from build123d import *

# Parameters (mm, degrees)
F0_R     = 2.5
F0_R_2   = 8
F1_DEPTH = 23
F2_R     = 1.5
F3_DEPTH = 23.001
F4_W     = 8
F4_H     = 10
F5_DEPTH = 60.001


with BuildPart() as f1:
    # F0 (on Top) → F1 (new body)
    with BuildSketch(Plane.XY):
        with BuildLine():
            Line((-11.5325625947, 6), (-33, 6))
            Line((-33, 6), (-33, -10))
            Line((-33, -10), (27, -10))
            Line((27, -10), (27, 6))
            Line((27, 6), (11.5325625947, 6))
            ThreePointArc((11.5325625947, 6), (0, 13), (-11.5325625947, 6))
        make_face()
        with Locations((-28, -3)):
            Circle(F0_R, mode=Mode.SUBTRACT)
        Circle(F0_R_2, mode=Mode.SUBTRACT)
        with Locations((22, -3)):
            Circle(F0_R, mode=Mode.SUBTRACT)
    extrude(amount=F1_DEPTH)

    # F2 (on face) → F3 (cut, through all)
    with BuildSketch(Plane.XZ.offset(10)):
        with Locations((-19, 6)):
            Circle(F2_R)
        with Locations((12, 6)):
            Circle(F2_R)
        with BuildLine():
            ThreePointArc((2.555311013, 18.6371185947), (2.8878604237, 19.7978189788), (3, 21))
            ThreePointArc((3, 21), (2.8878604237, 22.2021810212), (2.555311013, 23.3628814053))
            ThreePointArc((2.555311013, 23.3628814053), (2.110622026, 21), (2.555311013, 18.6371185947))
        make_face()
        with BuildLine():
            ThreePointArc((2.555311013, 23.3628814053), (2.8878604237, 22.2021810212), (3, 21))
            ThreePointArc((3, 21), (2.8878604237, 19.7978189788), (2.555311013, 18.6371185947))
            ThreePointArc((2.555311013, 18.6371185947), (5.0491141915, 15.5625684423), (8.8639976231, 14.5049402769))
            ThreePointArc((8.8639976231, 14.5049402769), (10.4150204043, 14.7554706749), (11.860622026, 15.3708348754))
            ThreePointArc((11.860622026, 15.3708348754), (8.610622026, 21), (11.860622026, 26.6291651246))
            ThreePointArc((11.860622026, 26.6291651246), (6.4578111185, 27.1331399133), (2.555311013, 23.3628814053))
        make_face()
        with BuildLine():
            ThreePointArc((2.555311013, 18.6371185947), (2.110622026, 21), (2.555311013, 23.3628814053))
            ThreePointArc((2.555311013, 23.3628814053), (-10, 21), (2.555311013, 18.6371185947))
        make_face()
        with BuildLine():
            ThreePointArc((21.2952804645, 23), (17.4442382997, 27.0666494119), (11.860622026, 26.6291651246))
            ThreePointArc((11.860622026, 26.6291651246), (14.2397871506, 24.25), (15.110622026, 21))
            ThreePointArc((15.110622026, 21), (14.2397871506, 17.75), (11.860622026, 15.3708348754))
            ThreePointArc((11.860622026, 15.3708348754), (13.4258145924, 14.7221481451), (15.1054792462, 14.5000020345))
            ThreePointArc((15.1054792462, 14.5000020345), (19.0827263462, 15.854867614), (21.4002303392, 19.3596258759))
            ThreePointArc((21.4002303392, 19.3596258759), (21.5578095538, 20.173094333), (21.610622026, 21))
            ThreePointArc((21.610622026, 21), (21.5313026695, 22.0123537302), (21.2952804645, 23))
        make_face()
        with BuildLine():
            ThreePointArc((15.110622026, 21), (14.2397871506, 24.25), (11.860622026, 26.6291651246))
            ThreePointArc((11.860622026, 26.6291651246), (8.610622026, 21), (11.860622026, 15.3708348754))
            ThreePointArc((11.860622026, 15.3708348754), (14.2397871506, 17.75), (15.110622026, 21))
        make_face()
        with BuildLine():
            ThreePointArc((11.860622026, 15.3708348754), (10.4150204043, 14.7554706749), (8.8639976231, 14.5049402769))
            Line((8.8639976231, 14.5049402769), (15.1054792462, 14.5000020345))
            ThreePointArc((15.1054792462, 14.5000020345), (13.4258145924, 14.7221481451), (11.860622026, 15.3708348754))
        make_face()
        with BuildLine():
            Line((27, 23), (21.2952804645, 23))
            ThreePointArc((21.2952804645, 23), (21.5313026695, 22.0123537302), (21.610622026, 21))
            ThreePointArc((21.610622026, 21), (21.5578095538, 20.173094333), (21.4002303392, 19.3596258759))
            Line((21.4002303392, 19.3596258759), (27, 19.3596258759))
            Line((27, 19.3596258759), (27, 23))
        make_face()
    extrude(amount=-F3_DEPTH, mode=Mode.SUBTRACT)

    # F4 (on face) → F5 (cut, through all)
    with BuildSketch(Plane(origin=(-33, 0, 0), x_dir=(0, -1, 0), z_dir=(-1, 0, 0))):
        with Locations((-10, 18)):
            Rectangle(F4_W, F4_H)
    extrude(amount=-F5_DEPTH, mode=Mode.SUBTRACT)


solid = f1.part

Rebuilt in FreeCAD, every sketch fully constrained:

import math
import FreeCAD as App
import Part
import Sketcher
from FreeCAD import Vector
Q = App.Units.Quantity


def add_polygon(sketch, points):
    """Adds a closed chain of lines whose ends are joined by coincident constraints."""
    first, n = sketch.GeometryCount, len(points)
    for a, b in zip(points, points[1:] + points[:1]):
        sketch.addGeometry(Part.LineSegment(App.Vector(*a, 0), App.Vector(*b, 0)), False)
    for i in range(n):
        sketch.addConstraint(Sketcher.Constraint("Coincident", first + i, 2, first + (i + 1) % n, 1))

doc = App.newDocument("Part")
body = doc.addObject("PartDesign::Body", "Body")

# Sketch on XY plane
sketch1 = doc.addObject("Sketcher::SketchObject", "Sketch")
body.addObject(sketch1)
sketch1.AttachmentSupport = (doc.XY_Plane, [""])
sketch1.MapMode = "FlatFace"
sketch1.addGeometry([
    Part.LineSegment(Vector(-11.5, 6, 0), Vector(-33, 6, 0)),  # 0
    Part.LineSegment(Vector(-33, 6, 0), Vector(-33, -10, 0)),  # 1
    Part.LineSegment(Vector(-33, -10, 0), Vector(27, -10, 0)),  # 2
    Part.LineSegment(Vector(27, -10, 0), Vector(27, 6, 0)),  # 3
    Part.LineSegment(Vector(27, 6, 0), Vector(11.5, 6, 0)),  # 4
    Part.ArcOfCircle(Part.Circle(Vector(0, 0, 0), Vector(0, 0, 1), 13), math.radians(27), math.radians(153)),  # 5
    Part.Circle(Vector(-28, -3, 0), Vector(0, 0, 1), 2.5),  # 6
    Part.Circle(Vector(22, -3, 0), Vector(0, 0, 1), 2.5),  # 7
    Part.Circle(Vector(0, 0, 0), Vector(0, 0, 1), 8),  # 8
], False)
sketch1.addConstraint([
    Sketcher.Constraint("Coincident", 0, 2, 1, 1),
    Sketcher.Constraint("Coincident", 1, 2, 2, 1),
    Sketcher.Constraint("Coincident", 2, 2, 3, 1),
    Sketcher.Constraint("Coincident", 3, 2, 4, 1),
    Sketcher.Constraint("Coincident", 4, 2, 5, 1),
    Sketcher.Constraint("Coincident", 5, 2, 0, 1),
    Sketcher.Constraint("Horizontal", 0),
    Sketcher.Constraint("Vertical", 1),
    Sketcher.Constraint("Horizontal", 2),
    Sketcher.Constraint("Vertical", 3),
    Sketcher.Constraint("Horizontal", 4),
    Sketcher.Constraint("Coincident", 5, 3, -1, 1),
    Sketcher.Constraint("Coincident", 8, 3, -1, 1),
    Sketcher.Constraint("Equal", 6, 7),
    Sketcher.Constraint("Horizontal", 6, 3, 7, 3),
    Sketcher.Constraint("Horizontal", 0, 2, 3, 2),
    Sketcher.Constraint("Diameter", 6, Q("5 mm")),
    Sketcher.Constraint("Diameter", 8, Q("16 mm")),
    Sketcher.Constraint("Radius", 5, Q("13 mm")),
    Sketcher.Constraint("DistanceX", 2, 1, 2, 2, Q("60 mm")),
    Sketcher.Constraint("DistanceY", 1, 2, 1, 1, Q("16 mm")),
    Sketcher.Constraint("DistanceX", 6, 3, -1, 1, Q("28 mm")),
    Sketcher.Constraint("DistanceY", 6, 3, -1, 1, Q("3 mm")),
    Sketcher.Constraint("DistanceX", -1, 1, 7, 3, Q("22 mm")),
    Sketcher.Constraint("DistanceX", 0, 2, -1, 1, Q("33 mm")),
    Sketcher.Constraint("DistanceY", -1, 1, 0, 2, Q("6 mm")),
])
pad1 = doc.addObject("PartDesign::Pad", "Pad")
body.addObject(pad1)
pad1.Profile = sketch1
pad1.Length = 23

# Sketch on XZ plane
sketch2 = doc.addObject("Sketcher::SketchObject", "Sketch001")
body.addObject(sketch2)
sketch2.AttachmentSupport = (doc.XZ_Plane, [""])
sketch2.MapMode = "FlatFace"
sketch2.AttachmentOffset = App.Placement(Vector(0, 0, 10), App.Rotation())
sketch2.addGeometry([
    Part.Circle(Vector(-19, 6, 0), Vector(0, 0, 1), 1.5),  # 0
    Part.Circle(Vector(12, 6, 0), Vector(0, 0, 1), 1.5),  # 1
    Part.ArcOfCircle(Part.Circle(Vector(8.6, 21, 0), Vector(0, 0, 1), 6.5), math.radians(-159), math.radians(-88)),  # 2
    Part.LineSegment(Vector(8.9, 14.5, 0), Vector(15.1, 14.5, 0)),  # 3
    Part.ArcOfCircle(Part.Circle(Vector(15.1, 21, 0), Vector(0, 0, 1), 6.5), math.radians(-90), math.radians(-15)),  # 4
    Part.LineSegment(Vector(21.4, 19.4, 0), Vector(27, 19.4, 0)),  # 5
    Part.LineSegment(Vector(27, 19.4, 0), Vector(27, 23, 0)),  # 6
    Part.LineSegment(Vector(27, 23, 0), Vector(21.3, 23, 0)),  # 7
    Part.ArcOfCircle(Part.Circle(Vector(15.1, 21, 0), Vector(0, 0, 1), 6.5), math.radians(18), math.radians(120)),  # 8
    Part.ArcOfCircle(Part.Circle(Vector(8.6, 21, 0), Vector(0, 0, 1), 6.5), math.radians(60), math.radians(159)),  # 9
    Part.ArcOfCircle(Part.Circle(Vector(-3.5, 21, 0), Vector(0, 0, 1), 6.5), math.radians(21), math.radians(339)),  # 10
], False)
sketch2.addConstraint([
    Sketcher.Constraint("Coincident", 2, 2, 3, 1),
    Sketcher.Constraint("Tangent", 3, 2, 4, 1),
    Sketcher.Constraint("Coincident", 4, 2, 5, 1),
    Sketcher.Constraint("Coincident", 5, 2, 6, 1),
    Sketcher.Constraint("Coincident", 6, 2, 7, 1),
    Sketcher.Constraint("Coincident", 7, 2, 8, 1),
    Sketcher.Constraint("Coincident", 8, 2, 9, 1),
    Sketcher.Constraint("Coincident", 9, 2, 10, 1),
    Sketcher.Constraint("Coincident", 10, 2, 2, 1),
    Sketcher.Constraint("Horizontal", 5),
    Sketcher.Constraint("Vertical", 6),
    Sketcher.Constraint("Horizontal", 7),
    Sketcher.Constraint("Coincident", 8, 3, 4, 3),
    Sketcher.Constraint("Coincident", 9, 3, 2, 3),
    Sketcher.Constraint("Equal", 0, 1),
    Sketcher.Constraint("Equal", 2, 4),
    Sketcher.Constraint("Equal", 4, 8),
    Sketcher.Constraint("Equal", 8, 9),
    Sketcher.Constraint("Equal", 9, 10),
    Sketcher.Constraint("Horizontal", 0, 3, 1, 3),
    Sketcher.Constraint("Horizontal", 2, 3, 4, 3),
    Sketcher.Constraint("Horizontal", 9, 3, 10, 3),
    Sketcher.Constraint("Diameter", 0, Q("3 mm")),
    Sketcher.Constraint("Radius", 2, Q("6.5 mm")),
    Sketcher.Constraint("DistanceX", 0, 3, -1, 1, Q("19 mm")),
    Sketcher.Constraint("DistanceY", -1, 1, 0, 3, Q("6 mm")),
    Sketcher.Constraint("DistanceX", -1, 1, 1, 3, Q("12 mm")),
    Sketcher.Constraint("DistanceY", -1, 1, 2, 3, Q("21 mm")),
    Sketcher.Constraint("DistanceX", -1, 1, 5, 2, Q("27 mm")),
    Sketcher.Constraint("DistanceY", -1, 1, 6, 2, Q("23 mm")),
    Sketcher.Constraint("DistanceX", 10, 3, -1, 1, Q("3.5 mm")),
    Sketcher.Constraint("DistanceX", 2, 3, 4, 3, Q("6.5 mm")),
    Sketcher.Constraint("DistanceX", 5, 1, 5, 2, Q("5.59977 mm")),
    Sketcher.Constraint("DistanceX", 7, 2, 7, 1, Q("5.70472 mm")),
    Sketcher.Constraint("DistanceY", -1, 1, 2, 2, Q("14.50494 mm")),
])
pocket1 = doc.addObject("PartDesign::Pocket", "Pocket")
body.addObject(pocket1)
pocket1.Profile = sketch2
pocket1.Type = "ThroughAll"

# Sketch on YZ plane
sketch3 = doc.addObject("Sketcher::SketchObject", "Sketch002")
body.addObject(sketch3)
sketch3.AttachmentSupport = (doc.YZ_Plane, [""])
sketch3.MapMode = "FlatFace"
sketch3.AttachmentOffset = App.Placement(Vector(0, 0, -33), App.Rotation())
add_polygon(sketch3, [(14, 23), (14, 13), (6, 13), (6, 23)])  # lines 0-3
sketch3.addConstraint([
    Sketcher.Constraint("Vertical", 0),
    Sketcher.Constraint("Horizontal", 1),
    Sketcher.Constraint("Vertical", 2),
    Sketcher.Constraint("Horizontal", 3),
    Sketcher.Constraint("DistanceX", 1, 2, 1, 1, Q("8 mm")),
    Sketcher.Constraint("DistanceY", 0, 2, 0, 1, Q("10 mm")),
    Sketcher.Constraint("DistanceX", -1, 1, 0, 2, Q("14 mm")),
    Sketcher.Constraint("DistanceY", -1, 1, 0, 2, Q("13 mm")),
])
pocket2 = doc.addObject("PartDesign::Pocket", "Pocket001")
body.addObject(pocket2)
pocket2.Profile = sketch3
pocket2.Type = "ThroughAll"
pocket2.Reversed = True

doc.recompute()
